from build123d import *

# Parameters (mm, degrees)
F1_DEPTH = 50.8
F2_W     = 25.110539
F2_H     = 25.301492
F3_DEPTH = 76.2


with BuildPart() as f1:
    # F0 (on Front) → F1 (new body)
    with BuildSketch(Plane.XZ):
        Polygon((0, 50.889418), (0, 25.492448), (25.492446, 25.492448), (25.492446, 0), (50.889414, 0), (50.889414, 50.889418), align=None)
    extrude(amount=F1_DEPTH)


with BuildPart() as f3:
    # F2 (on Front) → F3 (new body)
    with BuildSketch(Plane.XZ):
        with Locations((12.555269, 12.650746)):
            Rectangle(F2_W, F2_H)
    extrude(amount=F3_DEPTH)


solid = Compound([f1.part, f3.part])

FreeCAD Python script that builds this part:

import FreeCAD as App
import Part
import Sketcher
from FreeCAD import Vector
Q = App.Units.Quantity


def add_polygon(sketch, points):
    """Adds a closed chain of lines whose ends are joined by coincident constraints."""
    first, n = sketch.GeometryCount, len(points)
    for a, b in zip(points, points[1:] + points[:1]):
        sketch.addGeometry(Part.LineSegment(App.Vector(*a, 0), App.Vector(*b, 0)), False)
    for i in range(n):
        sketch.addConstraint(Sketcher.Constraint("Coincident", first + i, 2, first + (i + 1) % n, 1))

doc = App.newDocument("Part")
body = doc.addObject("PartDesign::Body", "Body")

# Sketch on XZ plane
sketch1 = body.newObject("Sketcher::SketchObject", "Sketch")
sketch1.AttachmentSupport = (doc.getObject("XZ_Plane"), [""])
sketch1.MapMode = "FlatFace"
add_polygon(sketch1, [(0, 50.889418), (0, 25.492448), (25.492446, 25.492448), (25.492446, 0), (50.889414, 0), (50.889414, 50.889418)])  # lines 0-5
sketch1.addConstraint([
    Sketcher.Constraint("Vertical", 0),
    Sketcher.Constraint("Horizontal", 1),
    Sketcher.Constraint("Vertical", 2),
    Sketcher.Constraint("Horizontal", 3),
    Sketcher.Constraint("Vertical", 4),
    Sketcher.Constraint("Horizontal", 5),
    Sketcher.Constraint("PointOnObject", 0, 2, -2),
    Sketcher.Constraint("PointOnObject", 2, 2, -1),
    Sketcher.Constraint("Equal", 3, 0),
    Sketcher.Constraint("Equal", 1, 2),
    Sketcher.Constraint("DistanceX", 3, 1, 3, 2, Q("25.396968 mm")),
    Sketcher.Constraint("DistanceX", 1, 1, 1, 2, Q("25.492446 mm")),
])
pad1 = body.newObject("PartDesign::Pad", "Pad")
pad1.Profile = sketch1
pad1.Length = Q("2 in")
body2 = doc.addObject("PartDesign::Body", "Body001")

# Sketch on XZ plane
sketch2 = body2.newObject("Sketcher::SketchObject", "Sketch001")
sketch2.AttachmentSupport = (doc.getObject("XZ_Plane001"), [""])
sketch2.MapMode = "FlatFace"
add_polygon(sketch2, [(0, 25.301492), (0, 0), (25.110539, 0), (25.110539, 25.301492)])  # lines 0-3
sketch2.addConstraint([
    Sketcher.Constraint("Vertical", 0),
    Sketcher.Constraint("Horizontal", 1),
    Sketcher.Constraint("Vertical", 2),
    Sketcher.Constraint("Horizontal", 3),
    Sketcher.Constraint("Coincident", 0, 2, -1, 1),
    Sketcher.Constraint("DistanceX", 1, 1, 1, 2, Q("25.110539 mm")),
    Sketcher.Constraint("DistanceY", 0, 2, 0, 1, Q("25.301492 mm")),
])
pad2 = body2.newObject("PartDesign::Pad", "Pad001")
pad2.Profile = sketch2
pad2.Length = Q("3 in")

doc.recompute()
